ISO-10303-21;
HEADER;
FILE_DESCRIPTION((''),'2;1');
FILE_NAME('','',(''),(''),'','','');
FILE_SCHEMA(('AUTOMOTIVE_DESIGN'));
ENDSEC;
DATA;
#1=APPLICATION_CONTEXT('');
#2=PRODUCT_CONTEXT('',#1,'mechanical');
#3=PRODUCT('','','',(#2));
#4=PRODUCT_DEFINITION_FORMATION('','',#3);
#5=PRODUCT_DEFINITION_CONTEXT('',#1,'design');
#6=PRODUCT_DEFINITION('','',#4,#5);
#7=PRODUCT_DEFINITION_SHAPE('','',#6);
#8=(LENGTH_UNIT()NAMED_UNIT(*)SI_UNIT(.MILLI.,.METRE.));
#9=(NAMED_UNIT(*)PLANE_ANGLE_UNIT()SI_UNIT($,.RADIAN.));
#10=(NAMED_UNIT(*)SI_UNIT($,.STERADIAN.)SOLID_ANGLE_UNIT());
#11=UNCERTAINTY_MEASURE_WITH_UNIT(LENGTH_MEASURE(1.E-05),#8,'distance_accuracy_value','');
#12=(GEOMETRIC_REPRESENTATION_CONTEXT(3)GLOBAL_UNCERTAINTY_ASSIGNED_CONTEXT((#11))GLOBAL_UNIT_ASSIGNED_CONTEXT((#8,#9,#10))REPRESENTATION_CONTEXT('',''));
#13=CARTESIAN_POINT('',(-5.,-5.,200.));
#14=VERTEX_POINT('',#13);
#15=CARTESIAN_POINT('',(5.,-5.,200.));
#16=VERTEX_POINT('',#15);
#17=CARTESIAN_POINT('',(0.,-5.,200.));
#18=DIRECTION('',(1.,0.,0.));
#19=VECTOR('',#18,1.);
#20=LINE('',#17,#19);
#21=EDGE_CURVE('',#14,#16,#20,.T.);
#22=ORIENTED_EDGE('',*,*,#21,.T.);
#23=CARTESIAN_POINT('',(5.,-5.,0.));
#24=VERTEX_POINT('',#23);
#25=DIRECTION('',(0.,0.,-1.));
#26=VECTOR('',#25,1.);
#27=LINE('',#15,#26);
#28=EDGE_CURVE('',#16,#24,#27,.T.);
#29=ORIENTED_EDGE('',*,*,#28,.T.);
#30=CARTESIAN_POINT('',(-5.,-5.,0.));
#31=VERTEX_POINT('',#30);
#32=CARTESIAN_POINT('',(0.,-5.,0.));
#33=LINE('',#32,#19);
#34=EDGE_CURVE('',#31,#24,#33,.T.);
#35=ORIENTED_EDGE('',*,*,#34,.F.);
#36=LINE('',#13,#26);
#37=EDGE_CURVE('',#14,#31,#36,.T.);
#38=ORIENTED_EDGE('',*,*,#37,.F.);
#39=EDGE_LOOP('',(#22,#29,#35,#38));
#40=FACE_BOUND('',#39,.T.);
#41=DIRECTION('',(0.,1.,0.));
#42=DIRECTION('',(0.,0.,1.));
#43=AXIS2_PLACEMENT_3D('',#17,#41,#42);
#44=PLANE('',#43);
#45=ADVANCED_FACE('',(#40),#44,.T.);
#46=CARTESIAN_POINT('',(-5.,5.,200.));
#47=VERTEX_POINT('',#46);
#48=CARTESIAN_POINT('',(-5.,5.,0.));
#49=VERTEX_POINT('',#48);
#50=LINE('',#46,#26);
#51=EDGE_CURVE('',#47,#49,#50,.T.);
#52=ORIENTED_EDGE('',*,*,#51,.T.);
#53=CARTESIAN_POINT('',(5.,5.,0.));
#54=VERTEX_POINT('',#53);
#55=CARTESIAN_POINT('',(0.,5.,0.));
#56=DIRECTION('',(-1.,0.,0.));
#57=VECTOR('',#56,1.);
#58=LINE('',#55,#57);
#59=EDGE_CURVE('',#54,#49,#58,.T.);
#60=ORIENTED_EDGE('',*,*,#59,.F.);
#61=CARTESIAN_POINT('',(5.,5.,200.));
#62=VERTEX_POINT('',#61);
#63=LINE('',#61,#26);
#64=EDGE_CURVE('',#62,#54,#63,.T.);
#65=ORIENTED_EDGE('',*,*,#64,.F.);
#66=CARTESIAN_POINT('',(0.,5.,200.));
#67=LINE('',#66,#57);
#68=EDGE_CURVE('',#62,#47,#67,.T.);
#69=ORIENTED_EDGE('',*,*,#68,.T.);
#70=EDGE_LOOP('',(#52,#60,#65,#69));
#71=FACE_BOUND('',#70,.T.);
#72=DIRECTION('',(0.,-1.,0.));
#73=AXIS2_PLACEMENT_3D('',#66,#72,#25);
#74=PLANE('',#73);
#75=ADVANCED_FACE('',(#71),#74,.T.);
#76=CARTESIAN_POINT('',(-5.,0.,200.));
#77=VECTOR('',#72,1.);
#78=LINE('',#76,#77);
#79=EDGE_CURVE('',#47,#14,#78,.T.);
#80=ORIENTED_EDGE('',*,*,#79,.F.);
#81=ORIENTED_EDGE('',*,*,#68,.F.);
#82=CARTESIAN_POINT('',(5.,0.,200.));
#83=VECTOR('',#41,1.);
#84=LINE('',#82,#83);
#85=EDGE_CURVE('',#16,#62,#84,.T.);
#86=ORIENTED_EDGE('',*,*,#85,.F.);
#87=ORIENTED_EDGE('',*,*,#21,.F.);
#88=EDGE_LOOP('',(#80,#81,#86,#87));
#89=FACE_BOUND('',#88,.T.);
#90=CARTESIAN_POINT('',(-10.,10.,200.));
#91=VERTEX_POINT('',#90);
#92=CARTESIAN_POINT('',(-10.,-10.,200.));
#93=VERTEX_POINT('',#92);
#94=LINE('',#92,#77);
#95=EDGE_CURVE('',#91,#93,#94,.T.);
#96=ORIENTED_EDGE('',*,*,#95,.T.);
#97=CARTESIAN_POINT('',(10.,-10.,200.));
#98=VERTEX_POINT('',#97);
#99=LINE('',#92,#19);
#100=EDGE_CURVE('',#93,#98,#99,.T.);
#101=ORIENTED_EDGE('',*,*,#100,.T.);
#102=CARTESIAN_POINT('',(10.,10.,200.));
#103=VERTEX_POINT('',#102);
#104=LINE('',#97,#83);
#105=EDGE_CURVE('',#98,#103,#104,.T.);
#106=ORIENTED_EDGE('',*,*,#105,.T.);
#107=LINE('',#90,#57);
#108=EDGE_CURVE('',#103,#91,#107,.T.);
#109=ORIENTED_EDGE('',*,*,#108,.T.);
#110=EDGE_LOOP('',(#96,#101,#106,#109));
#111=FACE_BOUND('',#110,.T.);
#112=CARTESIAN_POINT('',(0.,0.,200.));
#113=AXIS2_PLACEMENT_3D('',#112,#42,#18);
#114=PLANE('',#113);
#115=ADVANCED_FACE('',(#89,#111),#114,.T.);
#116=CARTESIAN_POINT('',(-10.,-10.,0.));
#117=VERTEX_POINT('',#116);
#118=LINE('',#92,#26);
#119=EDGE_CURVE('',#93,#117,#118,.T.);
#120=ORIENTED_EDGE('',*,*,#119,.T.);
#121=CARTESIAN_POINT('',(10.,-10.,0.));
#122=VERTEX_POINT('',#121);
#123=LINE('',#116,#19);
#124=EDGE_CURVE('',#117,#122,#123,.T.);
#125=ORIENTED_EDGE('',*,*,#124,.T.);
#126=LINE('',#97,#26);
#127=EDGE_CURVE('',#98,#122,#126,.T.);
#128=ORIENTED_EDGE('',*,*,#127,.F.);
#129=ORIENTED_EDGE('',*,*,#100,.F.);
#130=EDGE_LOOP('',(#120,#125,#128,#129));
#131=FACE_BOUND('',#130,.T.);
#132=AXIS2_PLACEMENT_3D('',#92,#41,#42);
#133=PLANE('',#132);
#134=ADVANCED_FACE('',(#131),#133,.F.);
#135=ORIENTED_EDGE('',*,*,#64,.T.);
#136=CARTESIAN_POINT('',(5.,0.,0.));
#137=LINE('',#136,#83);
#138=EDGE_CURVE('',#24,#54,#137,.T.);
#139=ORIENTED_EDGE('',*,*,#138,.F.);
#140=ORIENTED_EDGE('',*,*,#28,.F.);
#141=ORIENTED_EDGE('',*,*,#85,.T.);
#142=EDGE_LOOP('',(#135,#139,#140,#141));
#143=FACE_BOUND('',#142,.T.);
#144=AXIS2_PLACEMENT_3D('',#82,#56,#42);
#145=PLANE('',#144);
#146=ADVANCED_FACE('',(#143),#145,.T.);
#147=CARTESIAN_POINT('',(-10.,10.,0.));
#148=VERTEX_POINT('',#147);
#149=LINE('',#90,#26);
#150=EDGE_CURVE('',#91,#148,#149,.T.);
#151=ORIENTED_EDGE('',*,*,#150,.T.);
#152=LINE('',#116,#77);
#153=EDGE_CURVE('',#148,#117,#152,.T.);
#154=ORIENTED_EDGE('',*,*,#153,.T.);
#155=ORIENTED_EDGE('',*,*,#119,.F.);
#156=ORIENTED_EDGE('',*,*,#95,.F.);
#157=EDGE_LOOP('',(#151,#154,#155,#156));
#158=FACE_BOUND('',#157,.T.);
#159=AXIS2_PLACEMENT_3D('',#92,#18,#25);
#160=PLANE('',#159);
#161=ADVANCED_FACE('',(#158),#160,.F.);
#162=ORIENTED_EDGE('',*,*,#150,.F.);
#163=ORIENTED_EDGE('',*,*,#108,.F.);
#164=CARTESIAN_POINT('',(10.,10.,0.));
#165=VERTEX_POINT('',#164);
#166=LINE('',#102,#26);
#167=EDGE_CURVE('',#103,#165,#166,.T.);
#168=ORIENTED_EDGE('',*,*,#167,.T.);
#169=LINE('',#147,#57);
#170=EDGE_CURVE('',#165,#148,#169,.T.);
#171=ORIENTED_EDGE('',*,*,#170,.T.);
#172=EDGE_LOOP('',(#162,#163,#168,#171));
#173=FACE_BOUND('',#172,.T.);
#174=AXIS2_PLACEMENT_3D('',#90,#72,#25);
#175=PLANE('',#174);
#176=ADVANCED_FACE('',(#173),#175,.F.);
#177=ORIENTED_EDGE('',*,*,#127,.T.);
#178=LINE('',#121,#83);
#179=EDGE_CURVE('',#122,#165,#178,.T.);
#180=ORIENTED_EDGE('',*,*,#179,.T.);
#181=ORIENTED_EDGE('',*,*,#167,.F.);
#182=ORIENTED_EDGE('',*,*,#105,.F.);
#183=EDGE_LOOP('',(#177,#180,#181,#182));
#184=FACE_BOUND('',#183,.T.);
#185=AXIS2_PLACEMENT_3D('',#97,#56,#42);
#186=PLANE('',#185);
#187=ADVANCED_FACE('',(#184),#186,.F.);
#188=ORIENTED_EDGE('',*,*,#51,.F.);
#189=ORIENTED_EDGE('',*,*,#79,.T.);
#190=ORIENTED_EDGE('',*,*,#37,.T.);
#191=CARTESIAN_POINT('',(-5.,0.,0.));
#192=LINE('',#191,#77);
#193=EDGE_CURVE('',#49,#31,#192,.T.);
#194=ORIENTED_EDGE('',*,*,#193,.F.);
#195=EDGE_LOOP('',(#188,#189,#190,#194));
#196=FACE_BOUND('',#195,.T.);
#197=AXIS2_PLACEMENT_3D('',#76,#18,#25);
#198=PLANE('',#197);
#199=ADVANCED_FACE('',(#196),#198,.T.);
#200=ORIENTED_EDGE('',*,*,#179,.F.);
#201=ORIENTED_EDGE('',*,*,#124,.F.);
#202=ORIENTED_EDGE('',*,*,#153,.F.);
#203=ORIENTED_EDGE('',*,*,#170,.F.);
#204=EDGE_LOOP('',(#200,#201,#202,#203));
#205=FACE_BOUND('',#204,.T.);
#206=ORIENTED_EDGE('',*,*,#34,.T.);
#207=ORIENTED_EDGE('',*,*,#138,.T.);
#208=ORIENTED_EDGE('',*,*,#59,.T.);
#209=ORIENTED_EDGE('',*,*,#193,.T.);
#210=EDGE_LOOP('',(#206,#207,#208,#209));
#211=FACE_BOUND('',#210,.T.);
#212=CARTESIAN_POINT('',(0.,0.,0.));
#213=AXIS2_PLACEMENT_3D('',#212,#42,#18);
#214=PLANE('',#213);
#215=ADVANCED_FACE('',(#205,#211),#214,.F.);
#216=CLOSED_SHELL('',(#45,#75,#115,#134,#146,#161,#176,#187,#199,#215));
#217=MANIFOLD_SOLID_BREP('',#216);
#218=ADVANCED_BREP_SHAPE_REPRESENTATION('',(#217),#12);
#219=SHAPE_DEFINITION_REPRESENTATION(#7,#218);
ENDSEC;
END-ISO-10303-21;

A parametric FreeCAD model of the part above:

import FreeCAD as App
import Part
import Sketcher

V = App.Vector

doc = App.newDocument("Part")
body = doc.addObject("PartDesign::Body", "Body")

sketch1 = doc.addObject("Sketcher::SketchObject", "Sketch")
body.addObject(sketch1)
sketch1.AttachmentSupport = (doc.XY_Plane, [""])
sketch1.MapMode = "FlatFace"
sketch1.addGeometry(Part.LineSegment(V(-10, 10, 0), V(-10, -10, 0)), False)
sketch1.addGeometry(Part.LineSegment(V(-10, -10, 0), V(10, -10, 0)), False)
sketch1.addGeometry(Part.LineSegment(V(10, -10, 0), V(10, 10, 0)), False)
sketch1.addGeometry(Part.LineSegment(V(10, 10, 0), V(-10, 10, 0)), False)
sketch1.addGeometry(Part.LineSegment(V(5, -5, 0), V(-5, -5, 0)), False)
sketch1.addGeometry(Part.LineSegment(V(-5, -5, 0), V(-5, 5, 0)), False)
sketch1.addGeometry(Part.LineSegment(V(-5, 5, 0), V(5, 5, 0)), False)
sketch1.addGeometry(Part.LineSegment(V(5, 5, 0), V(5, -5, 0)), False)
sketch1.addConstraint(Sketcher.Constraint("Coincident", 0, 2, 1, 1))
sketch1.addConstraint(Sketcher.Constraint("Coincident", 1, 2, 2, 1))
sketch1.addConstraint(Sketcher.Constraint("Coincident", 2, 2, 3, 1))
sketch1.addConstraint(Sketcher.Constraint("Coincident", 3, 2, 0, 1))
sketch1.addConstraint(Sketcher.Constraint("Coincident", 4, 2, 5, 1))
sketch1.addConstraint(Sketcher.Constraint("Coincident", 5, 2, 6, 1))
sketch1.addConstraint(Sketcher.Constraint("Coincident", 6, 2, 7, 1))
sketch1.addConstraint(Sketcher.Constraint("Coincident", 7, 2, 4, 1))
sketch1.addConstraint(Sketcher.Constraint("Vertical", 0))
sketch1.addConstraint(Sketcher.Constraint("Horizontal", 1))
sketch1.addConstraint(Sketcher.Constraint("Vertical", 2))
sketch1.addConstraint(Sketcher.Constraint("Horizontal", 3))
sketch1.addConstraint(Sketcher.Constraint("Horizontal", 4))
sketch1.addConstraint(Sketcher.Constraint("Vertical", 5))
sketch1.addConstraint(Sketcher.Constraint("Horizontal", 6))
sketch1.addConstraint(Sketcher.Constraint("Vertical", 7))
sketch1.addConstraint(Sketcher.Constraint("Symmetric", 0, 2, 2, 2, -1, 1))
sketch1.addConstraint(Sketcher.Constraint("Symmetric", 4, 2, 6, 2, -1, 1))
sketch1.addConstraint(Sketcher.Constraint("Equal", 3, 0))
sketch1.addConstraint(Sketcher.Constraint("Equal", 6, 5))
sketch1.addConstraint(Sketcher.Constraint("DistanceX", 1, 1, 1, 2, 20.0))
sketch1.addConstraint(Sketcher.Constraint("DistanceX", 4, 2, 4, 1, 10.0))
pad1 = doc.addObject("PartDesign::Pad", "Pad")
body.addObject(pad1)
pad1.Profile = sketch1
pad1.Length = 200

doc.recompute()
